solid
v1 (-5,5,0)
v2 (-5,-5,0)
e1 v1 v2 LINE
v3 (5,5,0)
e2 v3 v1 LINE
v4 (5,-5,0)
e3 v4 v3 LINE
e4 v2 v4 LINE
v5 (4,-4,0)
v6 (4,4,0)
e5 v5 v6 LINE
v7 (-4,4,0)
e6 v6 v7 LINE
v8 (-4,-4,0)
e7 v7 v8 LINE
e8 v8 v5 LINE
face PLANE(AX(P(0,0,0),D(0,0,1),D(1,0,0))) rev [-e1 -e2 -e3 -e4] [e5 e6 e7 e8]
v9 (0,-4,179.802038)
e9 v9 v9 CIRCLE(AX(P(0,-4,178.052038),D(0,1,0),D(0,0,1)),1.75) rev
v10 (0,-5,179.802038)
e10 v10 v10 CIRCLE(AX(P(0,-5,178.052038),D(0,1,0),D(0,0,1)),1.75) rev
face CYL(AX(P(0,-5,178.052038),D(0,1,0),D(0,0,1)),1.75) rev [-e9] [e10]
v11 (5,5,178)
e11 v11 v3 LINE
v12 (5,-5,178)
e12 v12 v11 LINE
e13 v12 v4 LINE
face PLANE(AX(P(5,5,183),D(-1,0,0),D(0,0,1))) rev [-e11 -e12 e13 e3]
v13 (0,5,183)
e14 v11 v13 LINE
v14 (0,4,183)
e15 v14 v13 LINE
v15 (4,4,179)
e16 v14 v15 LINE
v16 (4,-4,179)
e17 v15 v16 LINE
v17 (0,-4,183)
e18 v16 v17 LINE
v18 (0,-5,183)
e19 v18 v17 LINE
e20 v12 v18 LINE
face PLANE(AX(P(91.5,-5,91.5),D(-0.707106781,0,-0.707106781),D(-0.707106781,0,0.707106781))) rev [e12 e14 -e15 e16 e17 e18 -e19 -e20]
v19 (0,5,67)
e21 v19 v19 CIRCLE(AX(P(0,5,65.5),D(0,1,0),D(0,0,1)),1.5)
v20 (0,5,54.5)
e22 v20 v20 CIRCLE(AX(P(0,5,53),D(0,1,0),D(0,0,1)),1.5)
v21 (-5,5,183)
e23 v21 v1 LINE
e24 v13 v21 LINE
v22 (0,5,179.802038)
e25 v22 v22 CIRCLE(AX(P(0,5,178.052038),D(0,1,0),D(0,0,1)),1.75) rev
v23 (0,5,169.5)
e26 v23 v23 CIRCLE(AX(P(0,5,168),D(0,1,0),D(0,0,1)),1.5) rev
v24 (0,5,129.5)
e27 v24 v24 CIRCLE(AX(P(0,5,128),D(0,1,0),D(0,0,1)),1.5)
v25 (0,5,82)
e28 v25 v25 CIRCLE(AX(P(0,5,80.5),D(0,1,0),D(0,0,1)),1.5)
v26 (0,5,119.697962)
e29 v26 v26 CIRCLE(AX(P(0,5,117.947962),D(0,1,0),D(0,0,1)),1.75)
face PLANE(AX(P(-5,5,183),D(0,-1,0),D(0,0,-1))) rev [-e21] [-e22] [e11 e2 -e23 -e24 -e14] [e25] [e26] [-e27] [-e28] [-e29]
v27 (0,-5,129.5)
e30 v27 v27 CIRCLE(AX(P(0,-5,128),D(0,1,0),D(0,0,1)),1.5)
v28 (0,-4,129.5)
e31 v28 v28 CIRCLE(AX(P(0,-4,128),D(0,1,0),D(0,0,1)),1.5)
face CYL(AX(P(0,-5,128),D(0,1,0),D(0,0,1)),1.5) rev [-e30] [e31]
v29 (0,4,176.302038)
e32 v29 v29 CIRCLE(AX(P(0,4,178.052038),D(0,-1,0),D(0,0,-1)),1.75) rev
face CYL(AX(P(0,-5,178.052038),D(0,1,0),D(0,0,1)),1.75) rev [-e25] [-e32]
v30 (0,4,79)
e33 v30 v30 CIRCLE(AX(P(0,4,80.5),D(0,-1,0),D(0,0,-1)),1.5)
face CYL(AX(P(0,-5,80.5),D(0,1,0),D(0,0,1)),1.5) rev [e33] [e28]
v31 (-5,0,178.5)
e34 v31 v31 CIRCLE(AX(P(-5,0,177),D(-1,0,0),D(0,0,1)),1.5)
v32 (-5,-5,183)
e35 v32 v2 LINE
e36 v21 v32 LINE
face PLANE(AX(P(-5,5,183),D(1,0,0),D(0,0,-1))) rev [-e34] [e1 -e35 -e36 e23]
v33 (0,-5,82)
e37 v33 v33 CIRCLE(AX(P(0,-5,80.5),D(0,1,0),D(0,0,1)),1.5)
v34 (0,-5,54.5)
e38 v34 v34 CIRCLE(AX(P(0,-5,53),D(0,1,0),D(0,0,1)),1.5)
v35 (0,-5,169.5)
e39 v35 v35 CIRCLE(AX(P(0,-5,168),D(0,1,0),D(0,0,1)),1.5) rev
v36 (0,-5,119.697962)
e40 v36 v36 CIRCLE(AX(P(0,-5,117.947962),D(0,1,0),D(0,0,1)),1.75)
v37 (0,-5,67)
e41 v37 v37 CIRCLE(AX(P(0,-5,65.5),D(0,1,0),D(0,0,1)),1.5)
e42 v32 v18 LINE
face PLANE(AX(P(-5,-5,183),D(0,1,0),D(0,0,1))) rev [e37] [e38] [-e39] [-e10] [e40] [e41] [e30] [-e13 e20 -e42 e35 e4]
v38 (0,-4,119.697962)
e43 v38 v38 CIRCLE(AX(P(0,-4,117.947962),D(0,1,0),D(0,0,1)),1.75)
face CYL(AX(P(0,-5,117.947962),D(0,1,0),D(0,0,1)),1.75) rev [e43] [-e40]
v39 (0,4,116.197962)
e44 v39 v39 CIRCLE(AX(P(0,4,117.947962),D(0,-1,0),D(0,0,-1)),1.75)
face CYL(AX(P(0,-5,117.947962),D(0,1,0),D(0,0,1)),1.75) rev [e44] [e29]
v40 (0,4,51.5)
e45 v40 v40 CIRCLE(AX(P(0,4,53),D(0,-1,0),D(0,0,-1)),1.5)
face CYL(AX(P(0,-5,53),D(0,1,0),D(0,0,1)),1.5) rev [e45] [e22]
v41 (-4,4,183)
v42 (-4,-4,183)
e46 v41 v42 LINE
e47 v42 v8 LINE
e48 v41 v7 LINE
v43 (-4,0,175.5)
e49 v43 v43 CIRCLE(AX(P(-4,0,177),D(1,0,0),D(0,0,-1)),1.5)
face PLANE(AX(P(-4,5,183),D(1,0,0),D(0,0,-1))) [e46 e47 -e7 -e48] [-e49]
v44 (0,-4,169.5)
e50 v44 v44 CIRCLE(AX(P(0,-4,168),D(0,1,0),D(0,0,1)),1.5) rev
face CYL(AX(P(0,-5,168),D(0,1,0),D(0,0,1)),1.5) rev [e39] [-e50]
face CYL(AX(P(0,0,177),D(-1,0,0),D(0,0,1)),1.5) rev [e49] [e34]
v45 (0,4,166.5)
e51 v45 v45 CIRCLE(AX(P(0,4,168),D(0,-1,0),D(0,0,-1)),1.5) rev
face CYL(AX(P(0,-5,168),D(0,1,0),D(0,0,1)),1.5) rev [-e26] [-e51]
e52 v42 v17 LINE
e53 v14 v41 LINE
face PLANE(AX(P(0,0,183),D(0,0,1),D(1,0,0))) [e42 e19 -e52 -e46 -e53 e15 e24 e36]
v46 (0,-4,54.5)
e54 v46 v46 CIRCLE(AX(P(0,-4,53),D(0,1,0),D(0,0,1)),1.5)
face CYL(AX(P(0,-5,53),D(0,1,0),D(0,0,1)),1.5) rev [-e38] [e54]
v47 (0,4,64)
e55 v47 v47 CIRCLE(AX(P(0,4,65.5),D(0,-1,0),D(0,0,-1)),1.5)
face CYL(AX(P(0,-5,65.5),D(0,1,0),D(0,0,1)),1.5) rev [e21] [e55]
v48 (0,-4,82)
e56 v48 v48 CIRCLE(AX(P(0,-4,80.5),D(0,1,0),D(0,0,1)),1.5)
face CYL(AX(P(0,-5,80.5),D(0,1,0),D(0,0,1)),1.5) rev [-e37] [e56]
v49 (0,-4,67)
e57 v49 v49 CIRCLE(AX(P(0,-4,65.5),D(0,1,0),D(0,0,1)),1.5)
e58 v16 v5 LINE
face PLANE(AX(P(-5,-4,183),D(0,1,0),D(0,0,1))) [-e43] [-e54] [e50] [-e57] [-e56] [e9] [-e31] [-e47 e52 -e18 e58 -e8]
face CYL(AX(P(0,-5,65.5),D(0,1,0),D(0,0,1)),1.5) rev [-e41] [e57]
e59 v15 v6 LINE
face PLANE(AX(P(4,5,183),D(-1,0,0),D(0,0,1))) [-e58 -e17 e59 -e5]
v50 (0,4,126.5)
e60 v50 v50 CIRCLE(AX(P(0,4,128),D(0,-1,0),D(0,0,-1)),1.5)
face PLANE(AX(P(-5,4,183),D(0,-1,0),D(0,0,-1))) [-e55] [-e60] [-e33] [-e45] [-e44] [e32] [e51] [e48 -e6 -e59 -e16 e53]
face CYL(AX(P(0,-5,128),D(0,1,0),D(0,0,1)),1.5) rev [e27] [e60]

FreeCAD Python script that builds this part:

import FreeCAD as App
import Part
import Sketcher
from FreeCAD import Vector
Q = App.Units.Quantity

doc = App.newDocument("Part")
body = doc.addObject("PartDesign::Body", "Body")

sketch1 = body.newObject("Sketcher::SketchObject", "Sketch")
sketch1.AttachmentSupport = (doc.getObject("XY_Plane"), [""])
sketch1.MapMode = "FlatFace"
sketch1.addGeometry(Part.LineSegment(Vector(-5, 5, 0), Vector(-5, -5, 0)), False)
sketch1.addGeometry(Part.LineSegment(Vector(-5, -5, 0), Vector(5, -5, 0)), False)
sketch1.addGeometry(Part.LineSegment(Vector(5, -5, 0), Vector(5, 5, 0)), False)
sketch1.addGeometry(Part.LineSegment(Vector(5, 5, 0), Vector(-5, 5, 0)), False)
sketch1.addGeometry(Part.LineSegment(Vector(4, -4, 0), Vector(-4, -4, 0)), False)
sketch1.addGeometry(Part.LineSegment(Vector(-4, -4, 0), Vector(-4, 4, 0)), False)
sketch1.addGeometry(Part.LineSegment(Vector(-4, 4, 0), Vector(4, 4, 0)), False)
sketch1.addGeometry(Part.LineSegment(Vector(4, 4, 0), Vector(4, -4, 0)), False)
sketch1.addConstraint(Sketcher.Constraint("Coincident", 0, 2, 1, 1))
sketch1.addConstraint(Sketcher.Constraint("Coincident", 1, 2, 2, 1))
sketch1.addConstraint(Sketcher.Constraint("Coincident", 2, 2, 3, 1))
sketch1.addConstraint(Sketcher.Constraint("Coincident", 3, 2, 0, 1))
sketch1.addConstraint(Sketcher.Constraint("Coincident", 4, 2, 5, 1))
sketch1.addConstraint(Sketcher.Constraint("Coincident", 5, 2, 6, 1))
sketch1.addConstraint(Sketcher.Constraint("Coincident", 6, 2, 7, 1))
sketch1.addConstraint(Sketcher.Constraint("Coincident", 7, 2, 4, 1))
sketch1.addConstraint(Sketcher.Constraint("Vertical", 0))
sketch1.addConstraint(Sketcher.Constraint("Horizontal", 1))
sketch1.addConstraint(Sketcher.Constraint("Vertical", 2))
sketch1.addConstraint(Sketcher.Constraint("Horizontal", 3))
sketch1.addConstraint(Sketcher.Constraint("Horizontal", 4))
sketch1.addConstraint(Sketcher.Constraint("Vertical", 5))
sketch1.addConstraint(Sketcher.Constraint("Horizontal", 6))
sketch1.addConstraint(Sketcher.Constraint("Vertical", 7))
sketch1.addConstraint(Sketcher.Constraint("Symmetric", 0, 2, 2, 2, -1, 1))
sketch1.addConstraint(Sketcher.Constraint("Symmetric", 4, 2, 6, 2, -1, 1))
sketch1.addConstraint(Sketcher.Constraint("Equal", 3, 0))
sketch1.addConstraint(Sketcher.Constraint("Equal", 6, 5))
sketch1.addConstraint(Sketcher.Constraint("DistanceX", 1, 1, 1, 2, Q("10 mm")))
sketch1.addConstraint(Sketcher.Constraint("DistanceX", 4, 2, 4, 1, Q("8 mm")))
pad1 = body.newObject("PartDesign::Pad", "Pad")
pad1.Profile = sketch1
pad1.Length = 183

sketch2 = body.newObject("Sketcher::SketchObject", "Sketch001")
sketch2.AttachmentSupport = (doc.getObject("XZ_Plane"), [""])
sketch2.MapMode = "FlatFace"
sketch2.AttachmentOffset = App.Placement(Vector(0, 0, -5), App.Rotation())
sketch2.addGeometry(Part.LineSegment(Vector(5, 183, 0), Vector(5, 178, 0)), False)
sketch2.addGeometry(Part.LineSegment(Vector(5, 178, 0), Vector(0, 183, 0)), False)
sketch2.addGeometry(Part.LineSegment(Vector(0, 183, 0), Vector(5, 183, 0)), False)
sketch2.addGeometry(Part.Circle(Vector(0, 178.052038, 0), Vector(0, 0, 1), 1.75), False)
sketch2.addGeometry(Part.Circle(Vector(0, 168, 0), Vector(0, 0, 1), 1.5), False)
sketch2.addGeometry(Part.Circle(Vector(0, 128, 0), Vector(0, 0, 1), 1.5), False)
sketch2.addGeometry(Part.Circle(Vector(0, 117.947962, 0), Vector(0, 0, 1), 1.75), False)
sketch2.addGeometry(Part.Circle(Vector(0, 80.5, 0), Vector(0, 0, 1), 1.5), False)
sketch2.addGeometry(Part.Circle(Vector(0, 65.5, 0), Vector(0, 0, 1), 1.5), False)
sketch2.addGeometry(Part.Circle(Vector(0, 53, 0), Vector(0, 0, 1), 1.5), False)
sketch2.addConstraint(Sketcher.Constraint("Coincident", 0, 2, 1, 1))
sketch2.addConstraint(Sketcher.Constraint("Coincident", 1, 2, 2, 1))
sketch2.addConstraint(Sketcher.Constraint("Coincident", 2, 2, 0, 1))
sketch2.addConstraint(Sketcher.Constraint("Vertical", 0))
sketch2.addConstraint(Sketcher.Constraint("Horizontal", 2))
sketch2.addConstraint(Sketcher.Constraint("Equal", 4, 5))
sketch2.addConstraint(Sketcher.Constraint("Equal", 3, 6))
sketch2.addConstraint(Sketcher.Constraint("Equal", 5, 7))
sketch2.addConstraint(Sketcher.Constraint("Equal", 7, 8))
sketch2.addConstraint(Sketcher.Constraint("Equal", 8, 9))
sketch2.addConstraint(Sketcher.Constraint("PointOnObject", 3, 3, -2))
sketch2.addConstraint(Sketcher.Constraint("PointOnObject", 4, 3, -2))
sketch2.addConstraint(Sketcher.Constraint("PointOnObject", 5, 3, -2))
sketch2.addConstraint(Sketcher.Constraint("PointOnObject", 6, 3, -2))
sketch2.addConstraint(Sketcher.Constraint("PointOnObject", 7, 3, -2))
sketch2.addConstraint(Sketcher.Constraint("PointOnObject", 8, 3, -2))
sketch2.addConstraint(Sketcher.Constraint("PointOnObject", 9, 3, -2))
sketch2.addConstraint(Sketcher.Constraint("PointOnObject", 1, 2, -2))
sketch2.addConstraint(Sketcher.Constraint("Equal", 2, 0))
sketch2.addConstraint(Sketcher.Constraint("Diameter", 4, Q("3 mm")))
sketch2.addConstraint(Sketcher.Constraint("Diameter", 3, Q("3.5 mm")))
sketch2.addConstraint(Sketcher.Constraint("DistanceX", 2, 1, 2, 2, Q("5 mm")))
sketch2.addConstraint(Sketcher.Constraint("DistanceY", -1, 1, 4, 3, Q("168 mm")))
sketch2.addConstraint(Sketcher.Constraint("DistanceY", -1, 1, 5, 3, Q("128 mm")))
sketch2.addConstraint(Sketcher.Constraint("DistanceY", -1, 1, 9, 3, Q("53 mm")))
sketch2.addConstraint(Sketcher.Constraint("DistanceY", -1, 1, 0, 2, Q("178 mm")))
sketch2.addConstraint(Sketcher.Constraint("DistanceY", 8, 3, 7, 3, Q("15 mm")))
sketch2.addConstraint(Sketcher.Constraint("DistanceY", -1, 1, 7, 3, Q("80.5 mm")))
sketch2.addConstraint(Sketcher.Constraint("DistanceY", -1, 1, 3, 3, Q("178.052038 mm")))
sketch2.addConstraint(Sketcher.Constraint("DistanceY", -1, 1, 6, 3, Q("117.947962 mm")))
pocket1 = body.newObject("PartDesign::Pocket", "Pocket")
pocket1.Profile = sketch2
pocket1.Type = "ThroughAll"
pocket1.Reversed = True

sketch3 = body.newObject("Sketcher::SketchObject", "Sketch002")
sketch3.AttachmentSupport = (doc.getObject("YZ_Plane"), [""])
sketch3.MapMode = "FlatFace"
sketch3.AttachmentOffset = App.Placement(Vector(0, 0, -5), App.Rotation())
sketch3.addGeometry(Part.Circle(Vector(0, 177, 0), Vector(0, 0, 1), 1.5), False)
sketch3.addConstraint(Sketcher.Constraint("PointOnObject", 0, 3, -2))
sketch3.addConstraint(Sketcher.Constraint("Diameter", 0, Q("3 mm")))
sketch3.addConstraint(Sketcher.Constraint("DistanceY", -1, 1, 0, 3, Q("177 mm")))
pocket2 = body.newObject("PartDesign::Pocket", "Pocket001")
pocket2.Profile = sketch3
pocket2.Length = 5
pocket2.Reversed = True

doc.recompute()
